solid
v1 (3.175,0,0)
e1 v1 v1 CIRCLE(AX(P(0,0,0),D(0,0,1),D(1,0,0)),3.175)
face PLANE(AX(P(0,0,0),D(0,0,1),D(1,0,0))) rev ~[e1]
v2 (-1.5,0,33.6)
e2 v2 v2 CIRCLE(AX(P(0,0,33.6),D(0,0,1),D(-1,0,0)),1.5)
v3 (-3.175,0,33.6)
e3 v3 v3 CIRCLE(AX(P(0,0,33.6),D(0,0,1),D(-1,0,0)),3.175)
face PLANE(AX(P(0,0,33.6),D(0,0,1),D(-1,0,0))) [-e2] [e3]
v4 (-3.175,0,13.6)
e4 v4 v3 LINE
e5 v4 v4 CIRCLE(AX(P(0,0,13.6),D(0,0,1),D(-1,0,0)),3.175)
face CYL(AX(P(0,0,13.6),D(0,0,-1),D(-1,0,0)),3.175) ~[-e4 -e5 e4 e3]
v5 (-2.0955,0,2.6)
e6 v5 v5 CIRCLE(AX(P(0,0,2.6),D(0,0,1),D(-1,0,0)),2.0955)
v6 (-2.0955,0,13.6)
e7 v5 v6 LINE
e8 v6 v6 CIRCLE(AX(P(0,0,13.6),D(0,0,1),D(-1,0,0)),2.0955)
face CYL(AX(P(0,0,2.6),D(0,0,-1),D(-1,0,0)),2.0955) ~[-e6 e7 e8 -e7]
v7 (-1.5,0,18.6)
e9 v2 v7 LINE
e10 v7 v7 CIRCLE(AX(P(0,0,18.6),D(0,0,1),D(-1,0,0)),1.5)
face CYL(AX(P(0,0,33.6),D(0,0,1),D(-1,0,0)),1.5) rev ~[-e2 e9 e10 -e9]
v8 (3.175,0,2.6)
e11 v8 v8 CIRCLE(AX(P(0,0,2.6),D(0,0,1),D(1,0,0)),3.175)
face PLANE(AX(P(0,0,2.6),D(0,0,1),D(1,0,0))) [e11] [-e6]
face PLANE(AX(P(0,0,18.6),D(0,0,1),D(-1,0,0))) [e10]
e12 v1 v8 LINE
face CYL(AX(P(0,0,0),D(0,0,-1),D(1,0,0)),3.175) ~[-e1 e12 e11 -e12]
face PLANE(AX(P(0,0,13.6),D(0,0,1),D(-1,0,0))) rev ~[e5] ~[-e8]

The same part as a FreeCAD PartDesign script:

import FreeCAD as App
import Part
import Sketcher

doc = App.newDocument("Part")
body = doc.addObject("PartDesign::Body", "Body")

# Sketch on XY plane
sketch1 = body.newObject("Sketcher::SketchObject", "Sketch")
sketch1.AttachmentSupport = (doc.getObject("XY_Plane"), [""])
sketch1.MapMode = "FlatFace"
sketch1.addGeometry(Part.Circle(App.Vector(0, 0, 0), App.Vector(0, 0, 1), 3.175), False)
sketch1.addConstraint([
    Sketcher.Constraint("Coincident", 0, 3, -1, 1),
    Sketcher.Constraint("Diameter", 0, 6.35),
])
pad1 = body.newObject("PartDesign::Pad", "Pad")
pad1.Profile = sketch1
pad1.Length = 2.6

# Sketch on XY plane
sketch2 = body.newObject("Sketcher::SketchObject", "Sketch001")
sketch2.AttachmentSupport = (doc.getObject("XY_Plane"), [""])
sketch2.MapMode = "FlatFace"
sketch2.AttachmentOffset = App.Placement(App.Vector(0, 0, 2.6), App.Rotation())
sketch2.addGeometry(Part.Circle(App.Vector(0, 0, 0), App.Vector(0, 0, 1), 2.0955), False)
sketch2.addConstraint([
    Sketcher.Constraint("Coincident", 0, 3, -1, 1),
    Sketcher.Constraint("Diameter", 0, 4.191),
])
pad2 = body.newObject("PartDesign::Pad", "Pad001")
pad2.Profile = sketch2
pad2.Length = 11

# Sketch on XY plane
sketch3 = body.newObject("Sketcher::SketchObject", "Sketch002")
sketch3.AttachmentSupport = (doc.getObject("XY_Plane"), [""])
sketch3.MapMode = "FlatFace"
sketch3.AttachmentOffset = App.Placement(App.Vector(0, 0, 13.6), App.Rotation())
sketch3.addGeometry(Part.Circle(App.Vector(0, 0, 0), App.Vector(0, 0, 1), 3.175), False)
sketch3.addConstraint([
    Sketcher.Constraint("Coincident", 0, 3, -1, 1),
    Sketcher.Constraint("Diameter", 0, 6.35),
])
pad3 = body.newObject("PartDesign::Pad", "Pad002")
pad3.Profile = sketch3
pad3.Length = 20

# Sketch on XY plane
sketch4 = body.newObject("Sketcher::SketchObject", "Sketch003")
sketch4.AttachmentSupport = (doc.getObject("XY_Plane"), [""])
sketch4.MapMode = "FlatFace"
sketch4.AttachmentOffset = App.Placement(App.Vector(0, 0, 33.6), App.Rotation())
sketch4.addGeometry(Part.Circle(App.Vector(0, 0, 0), App.Vector(0, 0, 1), 1.5), False)
sketch4.addConstraint([
    Sketcher.Constraint("Coincident", 0, 3, -1, 1),
    Sketcher.Constraint("Diameter", 0, 3.0),
])
pocket1 = body.newObject("PartDesign::Pocket", "Pocket")
pocket1.Profile = sketch4
pocket1.Length = 15

doc.recompute()
